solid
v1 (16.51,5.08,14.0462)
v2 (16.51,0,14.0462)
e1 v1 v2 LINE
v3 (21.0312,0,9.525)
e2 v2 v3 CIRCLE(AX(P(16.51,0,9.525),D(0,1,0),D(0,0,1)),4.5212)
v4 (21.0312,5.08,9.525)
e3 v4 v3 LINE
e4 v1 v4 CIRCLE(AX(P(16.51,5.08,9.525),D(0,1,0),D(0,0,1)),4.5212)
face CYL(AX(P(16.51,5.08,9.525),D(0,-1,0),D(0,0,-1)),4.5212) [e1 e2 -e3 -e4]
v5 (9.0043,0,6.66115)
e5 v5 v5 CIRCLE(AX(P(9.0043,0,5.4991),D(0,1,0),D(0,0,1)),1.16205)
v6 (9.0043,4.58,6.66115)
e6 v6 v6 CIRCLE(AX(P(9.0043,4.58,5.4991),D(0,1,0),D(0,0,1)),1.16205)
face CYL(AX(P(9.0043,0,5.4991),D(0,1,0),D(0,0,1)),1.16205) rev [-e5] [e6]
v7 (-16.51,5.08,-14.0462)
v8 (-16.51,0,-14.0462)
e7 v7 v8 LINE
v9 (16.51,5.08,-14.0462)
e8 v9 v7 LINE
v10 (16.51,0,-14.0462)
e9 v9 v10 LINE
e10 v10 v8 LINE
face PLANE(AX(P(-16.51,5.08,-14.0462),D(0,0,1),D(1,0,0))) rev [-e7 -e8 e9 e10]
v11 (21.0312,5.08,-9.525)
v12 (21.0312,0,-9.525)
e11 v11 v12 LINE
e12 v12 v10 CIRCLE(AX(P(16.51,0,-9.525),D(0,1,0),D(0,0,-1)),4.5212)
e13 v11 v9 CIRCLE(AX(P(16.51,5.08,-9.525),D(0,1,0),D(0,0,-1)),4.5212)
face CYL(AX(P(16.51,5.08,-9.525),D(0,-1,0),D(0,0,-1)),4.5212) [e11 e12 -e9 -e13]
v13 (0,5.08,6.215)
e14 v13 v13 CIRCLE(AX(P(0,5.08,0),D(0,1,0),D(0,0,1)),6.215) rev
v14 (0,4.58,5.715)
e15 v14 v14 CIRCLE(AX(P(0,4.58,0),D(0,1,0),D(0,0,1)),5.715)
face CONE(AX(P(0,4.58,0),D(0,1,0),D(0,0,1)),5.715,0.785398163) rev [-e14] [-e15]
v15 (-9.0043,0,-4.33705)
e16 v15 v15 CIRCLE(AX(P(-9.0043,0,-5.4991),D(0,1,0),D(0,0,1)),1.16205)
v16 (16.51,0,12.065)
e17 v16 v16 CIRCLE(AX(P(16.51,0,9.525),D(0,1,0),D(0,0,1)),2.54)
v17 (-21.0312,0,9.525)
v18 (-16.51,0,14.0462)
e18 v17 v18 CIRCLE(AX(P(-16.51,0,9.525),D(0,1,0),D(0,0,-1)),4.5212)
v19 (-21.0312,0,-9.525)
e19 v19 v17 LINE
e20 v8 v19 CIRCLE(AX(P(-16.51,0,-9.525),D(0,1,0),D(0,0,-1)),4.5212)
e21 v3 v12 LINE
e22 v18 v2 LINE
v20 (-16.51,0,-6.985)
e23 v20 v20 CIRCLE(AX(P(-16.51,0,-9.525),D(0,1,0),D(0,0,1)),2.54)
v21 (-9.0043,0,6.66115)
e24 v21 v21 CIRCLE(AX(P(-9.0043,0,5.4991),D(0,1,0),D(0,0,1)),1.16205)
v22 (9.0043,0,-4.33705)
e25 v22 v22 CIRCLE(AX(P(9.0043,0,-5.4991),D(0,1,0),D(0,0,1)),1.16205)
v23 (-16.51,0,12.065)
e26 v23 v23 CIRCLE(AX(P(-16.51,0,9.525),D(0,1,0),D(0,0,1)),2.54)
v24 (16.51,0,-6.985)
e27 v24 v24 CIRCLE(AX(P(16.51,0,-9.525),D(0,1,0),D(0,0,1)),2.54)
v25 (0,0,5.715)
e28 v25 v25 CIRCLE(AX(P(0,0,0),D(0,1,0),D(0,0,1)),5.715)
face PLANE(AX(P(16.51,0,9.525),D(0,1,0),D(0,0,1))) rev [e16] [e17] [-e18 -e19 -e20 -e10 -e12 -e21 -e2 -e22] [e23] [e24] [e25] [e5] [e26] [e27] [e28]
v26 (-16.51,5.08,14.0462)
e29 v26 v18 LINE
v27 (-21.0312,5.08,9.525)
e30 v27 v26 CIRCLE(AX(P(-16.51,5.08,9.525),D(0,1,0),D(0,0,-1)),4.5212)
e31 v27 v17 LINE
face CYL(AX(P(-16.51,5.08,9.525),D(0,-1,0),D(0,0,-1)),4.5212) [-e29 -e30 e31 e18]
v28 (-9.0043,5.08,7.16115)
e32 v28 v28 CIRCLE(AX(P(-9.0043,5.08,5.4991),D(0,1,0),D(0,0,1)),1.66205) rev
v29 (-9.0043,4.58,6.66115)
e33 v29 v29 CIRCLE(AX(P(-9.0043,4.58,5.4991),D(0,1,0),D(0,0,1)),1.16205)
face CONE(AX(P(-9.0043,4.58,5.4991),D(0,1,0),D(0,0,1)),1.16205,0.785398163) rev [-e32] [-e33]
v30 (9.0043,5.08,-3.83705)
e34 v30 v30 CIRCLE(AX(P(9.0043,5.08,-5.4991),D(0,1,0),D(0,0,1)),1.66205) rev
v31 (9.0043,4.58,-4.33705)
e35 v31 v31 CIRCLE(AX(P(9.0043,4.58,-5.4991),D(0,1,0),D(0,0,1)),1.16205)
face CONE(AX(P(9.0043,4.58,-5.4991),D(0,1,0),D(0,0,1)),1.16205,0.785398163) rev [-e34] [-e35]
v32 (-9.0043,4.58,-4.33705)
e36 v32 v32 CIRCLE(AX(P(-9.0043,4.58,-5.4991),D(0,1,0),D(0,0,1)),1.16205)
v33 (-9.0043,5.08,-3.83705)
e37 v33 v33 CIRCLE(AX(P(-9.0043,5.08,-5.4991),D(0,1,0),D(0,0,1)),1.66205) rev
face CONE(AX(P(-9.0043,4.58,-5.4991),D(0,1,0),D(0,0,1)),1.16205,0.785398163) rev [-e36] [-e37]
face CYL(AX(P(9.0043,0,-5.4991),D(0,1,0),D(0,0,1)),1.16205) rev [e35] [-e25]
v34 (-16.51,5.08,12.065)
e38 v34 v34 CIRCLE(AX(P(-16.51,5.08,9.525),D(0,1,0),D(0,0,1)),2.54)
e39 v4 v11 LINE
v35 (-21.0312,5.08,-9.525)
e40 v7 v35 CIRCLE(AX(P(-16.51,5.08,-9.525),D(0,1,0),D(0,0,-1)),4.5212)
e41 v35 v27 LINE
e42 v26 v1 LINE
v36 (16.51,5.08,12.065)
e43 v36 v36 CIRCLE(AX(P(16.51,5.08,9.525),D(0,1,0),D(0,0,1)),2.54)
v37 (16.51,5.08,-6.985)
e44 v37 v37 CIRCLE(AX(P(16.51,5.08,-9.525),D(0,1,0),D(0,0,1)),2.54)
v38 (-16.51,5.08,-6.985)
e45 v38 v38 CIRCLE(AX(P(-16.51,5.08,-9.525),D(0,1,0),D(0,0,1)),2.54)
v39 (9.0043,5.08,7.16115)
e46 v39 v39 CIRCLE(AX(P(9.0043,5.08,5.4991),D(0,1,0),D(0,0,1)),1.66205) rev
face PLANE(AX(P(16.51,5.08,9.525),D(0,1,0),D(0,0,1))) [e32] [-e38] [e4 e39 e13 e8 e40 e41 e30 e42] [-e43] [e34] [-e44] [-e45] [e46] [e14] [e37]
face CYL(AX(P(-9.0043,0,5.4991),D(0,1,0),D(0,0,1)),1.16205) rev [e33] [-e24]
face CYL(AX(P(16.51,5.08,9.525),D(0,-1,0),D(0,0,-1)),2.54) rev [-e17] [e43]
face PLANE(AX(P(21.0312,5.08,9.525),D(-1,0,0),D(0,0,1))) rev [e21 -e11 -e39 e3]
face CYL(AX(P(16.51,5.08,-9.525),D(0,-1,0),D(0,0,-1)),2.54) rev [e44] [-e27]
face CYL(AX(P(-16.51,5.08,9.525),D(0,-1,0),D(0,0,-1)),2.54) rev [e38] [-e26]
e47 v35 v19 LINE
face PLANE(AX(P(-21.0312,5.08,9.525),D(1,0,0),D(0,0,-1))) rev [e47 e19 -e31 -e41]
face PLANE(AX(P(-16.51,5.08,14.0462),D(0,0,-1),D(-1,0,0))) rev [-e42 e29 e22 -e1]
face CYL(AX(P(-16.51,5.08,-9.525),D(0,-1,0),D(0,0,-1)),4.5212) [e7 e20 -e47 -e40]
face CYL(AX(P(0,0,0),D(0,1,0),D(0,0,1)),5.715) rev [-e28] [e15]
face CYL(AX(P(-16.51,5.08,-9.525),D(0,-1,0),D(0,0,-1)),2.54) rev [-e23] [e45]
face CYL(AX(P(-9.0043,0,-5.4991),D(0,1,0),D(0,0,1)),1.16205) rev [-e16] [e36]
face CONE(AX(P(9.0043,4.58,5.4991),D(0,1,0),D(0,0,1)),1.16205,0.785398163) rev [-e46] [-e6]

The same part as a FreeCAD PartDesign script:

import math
import FreeCAD as App
import Part
import Sketcher
Q = App.Units.Quantity


def edges_at(feature, points):
    """Names of the edges that pass closest to the given points."""
    edges = feature.Shape.Edges
    near = lambda p: min(range(len(edges)), key=lambda i: edges[i].distToShape(Part.Vertex(*p))[0])
    return sorted({f"Edge{near(p) + 1}" for p in points})

doc = App.newDocument("Part")
params = doc.addObject("Spreadsheet::Sheet", "Params")
for row, (alias, value) in enumerate([
    ("sketch1_diameter", "0.2 in"),
    ("sketch1_width", "1.3 in"),
    ("sketch1_radius", "0.178 in"),
    ("sketch1_height", "0.75 in"),
    ("pad1_length", "0.2 in"),
    ("sketch2_diameter", "0.45 in"),
    ("chamfer_size", "0.5 mm"),
], start=1):
    params.set(f"A{row}", alias)
    params.set(f"B{row}", "=" + value)
    params.setAlias(f"B{row}", alias)

body = doc.addObject("PartDesign::Body", "Body")

sketch1 = body.newObject("Sketcher::SketchObject", "Sketch")
sketch1.AttachmentSupport = (doc.getObject("XZ_Plane"), [""])
sketch1.MapMode = "FlatFace"
sketch1.addGeometry(Part.LineSegment(App.Vector(-16.5, 14, 0), App.Vector(16.5, 14, 0)), False)
sketch1.addGeometry(Part.ArcOfCircle(Part.Circle(App.Vector(16.5, 9.5, 0), App.Vector(0, 0, 1), 4.5), math.radians(0), math.radians(90)), False)
sketch1.addGeometry(Part.LineSegment(App.Vector(21, 9.5, 0), App.Vector(21, -9.5, 0)), False)
sketch1.addGeometry(Part.ArcOfCircle(Part.Circle(App.Vector(16.5, -9.5, 0), App.Vector(0, 0, 1), 4.5), math.radians(-90), math.radians(0)), False)
sketch1.addGeometry(Part.LineSegment(App.Vector(16.5, -14, 0), App.Vector(-16.5, -14, 0)), False)
sketch1.addGeometry(Part.ArcOfCircle(Part.Circle(App.Vector(-16.5, -9.5, 0), App.Vector(0, 0, 1), 4.5), math.radians(180), math.radians(270)), False)
sketch1.addGeometry(Part.LineSegment(App.Vector(-21, -9.5, 0), App.Vector(-21, 9.5, 0)), False)
sketch1.addGeometry(Part.ArcOfCircle(Part.Circle(App.Vector(-16.5, 9.5, 0), App.Vector(0, 0, 1), 4.5), math.radians(90), math.radians(180)), False)
sketch1.addGeometry(Part.Circle(App.Vector(-16.5, 9.5, 0), App.Vector(0, 0, 1), 2.5), False)
sketch1.addGeometry(Part.Circle(App.Vector(16.5, 9.5, 0), App.Vector(0, 0, 1), 2.5), False)
sketch1.addGeometry(Part.Circle(App.Vector(-16.5, -9.5, 0), App.Vector(0, 0, 1), 2.5), False)
sketch1.addGeometry(Part.Circle(App.Vector(16.5, -9.5, 0), App.Vector(0, 0, 1), 2.5), False)
sketch1.addConstraint(Sketcher.Constraint("Tangent", 0, 2, 1, 2))
sketch1.addConstraint(Sketcher.Constraint("Tangent", 1, 1, 2, 1))
sketch1.addConstraint(Sketcher.Constraint("Tangent", 2, 2, 3, 2))
sketch1.addConstraint(Sketcher.Constraint("Tangent", 3, 1, 4, 1))
sketch1.addConstraint(Sketcher.Constraint("Tangent", 4, 2, 5, 2))
sketch1.addConstraint(Sketcher.Constraint("Tangent", 5, 1, 6, 1))
sketch1.addConstraint(Sketcher.Constraint("Tangent", 6, 2, 7, 2))
sketch1.addConstraint(Sketcher.Constraint("Tangent", 7, 1, 0, 1))
sketch1.addConstraint(Sketcher.Constraint("Horizontal", 0))
sketch1.addConstraint(Sketcher.Constraint("Vertical", 2))
sketch1.addConstraint(Sketcher.Constraint("Horizontal", 4))
sketch1.addConstraint(Sketcher.Constraint("Vertical", 6))
sketch1.addConstraint(Sketcher.Constraint("Coincident", 8, 3, 7, 3))
sketch1.addConstraint(Sketcher.Constraint("Coincident", 9, 3, 1, 3))
sketch1.addConstraint(Sketcher.Constraint("Coincident", 10, 3, 5, 3))
sketch1.addConstraint(Sketcher.Constraint("Coincident", 11, 3, 3, 3))
sketch1.addConstraint(Sketcher.Constraint("Equal", 1, 3))
sketch1.addConstraint(Sketcher.Constraint("Equal", 3, 5))
sketch1.addConstraint(Sketcher.Constraint("Equal", 5, 7))
sketch1.addConstraint(Sketcher.Constraint("Equal", 8, 9))
sketch1.addConstraint(Sketcher.Constraint("Equal", 9, 10))
sketch1.addConstraint(Sketcher.Constraint("Equal", 10, 11))
sketch1.addConstraint(Sketcher.Constraint("Symmetric", 1, 3, 5, 3, -1, 1))
sketch1.addConstraint(Sketcher.Constraint("Diameter", 8, Q("0.2 in")))
sketch1.addConstraint(Sketcher.Constraint("DistanceX", 0, 1, 0, 2, Q("1.3 in")))
sketch1.addConstraint(Sketcher.Constraint("Radius", 1, Q("0.178 in")))
sketch1.addConstraint(Sketcher.Constraint("DistanceY", 2, 2, 2, 1, Q("0.75 in")))
sketch1.setExpression("Constraints[23]", "Params.sketch1_diameter")
sketch1.setExpression("Constraints[24]", "Params.sketch1_width")
sketch1.setExpression("Constraints[25]", "Params.sketch1_radius")
sketch1.setExpression("Constraints[26]", "Params.sketch1_height")
pad1 = body.newObject("PartDesign::Pad", "Pad")
pad1.Profile = sketch1
pad1.setExpression("Length", "Params.pad1_length")
pad1.Reversed = True

sketch2 = body.newObject("Sketcher::SketchObject", "Sketch001")
sketch2.AttachmentSupport = (doc.getObject("XZ_Plane"), [""])
sketch2.MapMode = "FlatFace"
sketch2.AttachmentOffset = App.Placement(App.Vector(0, 0, -0.2 * 25.4), App.Rotation())
sketch2.addGeometry(Part.Circle(App.Vector(-9, -5.5, 0), App.Vector(0, 0, 1), 1.2), False)
sketch2.addGeometry(Part.Circle(App.Vector(9, -5.5, 0), App.Vector(0, 0, 1), 1.2), False)
sketch2.addGeometry(Part.Circle(App.Vector(9, 5.5, 0), App.Vector(0, 0, 1), 1.2), False)
sketch2.addGeometry(Part.Circle(App.Vector(-9, 5.5, 0), App.Vector(0, 0, 1), 1.2), False)
sketch2.addGeometry(Part.Circle(App.Vector(0, 0, 0), App.Vector(0, 0, 1), 5.7), False)
sketch2.addConstraint(Sketcher.Constraint("Coincident", 4, 3, -1, 1))
sketch2.addConstraint(Sketcher.Constraint("Equal", 0, 1))
sketch2.addConstraint(Sketcher.Constraint("Equal", 1, 2))
sketch2.addConstraint(Sketcher.Constraint("Equal", 2, 3))
sketch2.addConstraint(Sketcher.Constraint("Symmetric", 0, 3, 2, 3, -1, 1))
sketch2.addConstraint(Sketcher.Constraint("Symmetric", 1, 3, 3, 3, -1, 1))
sketch2.addConstraint(Sketcher.Constraint("Symmetric", 0, 3, 1, 3, -2))
sketch2.addConstraint(Sketcher.Constraint("Diameter", 4, Q("0.45 in")))
sketch2.addConstraint(Sketcher.Constraint("Diameter", 0, Q("0.0915 in")))
sketch2.addConstraint(Sketcher.Constraint("DistanceX", 0, 3, 1, 3, Q("0.709 in")))
sketch2.addConstraint(Sketcher.Constraint("DistanceY", 1, 3, 2, 3, Q("0.433 in")))
sketch2.setExpression("Constraints[7]", "Params.sketch2_diameter")
pocket1 = body.newObject("PartDesign::Pocket", "Pocket")
pocket1.Profile = sketch2
pocket1.Type = "ThroughAll"
pocket1.Reversed = True
doc.recompute()

chamfer = body.newObject("PartDesign::Chamfer", "Chamfer")
chamfer.Base = (pocket1, edges_at(pocket1, [
    (-5.715, 5.08, 0),
    (-10.166, 5.08, 5.499),
    (7.842, 5.08, 5.499),
    (7.842, 5.08, -5.499),
    (-10.166, 5.08, -5.499),
]))
chamfer.setExpression("Size", "Params.chamfer_size")

doc.recompute()
